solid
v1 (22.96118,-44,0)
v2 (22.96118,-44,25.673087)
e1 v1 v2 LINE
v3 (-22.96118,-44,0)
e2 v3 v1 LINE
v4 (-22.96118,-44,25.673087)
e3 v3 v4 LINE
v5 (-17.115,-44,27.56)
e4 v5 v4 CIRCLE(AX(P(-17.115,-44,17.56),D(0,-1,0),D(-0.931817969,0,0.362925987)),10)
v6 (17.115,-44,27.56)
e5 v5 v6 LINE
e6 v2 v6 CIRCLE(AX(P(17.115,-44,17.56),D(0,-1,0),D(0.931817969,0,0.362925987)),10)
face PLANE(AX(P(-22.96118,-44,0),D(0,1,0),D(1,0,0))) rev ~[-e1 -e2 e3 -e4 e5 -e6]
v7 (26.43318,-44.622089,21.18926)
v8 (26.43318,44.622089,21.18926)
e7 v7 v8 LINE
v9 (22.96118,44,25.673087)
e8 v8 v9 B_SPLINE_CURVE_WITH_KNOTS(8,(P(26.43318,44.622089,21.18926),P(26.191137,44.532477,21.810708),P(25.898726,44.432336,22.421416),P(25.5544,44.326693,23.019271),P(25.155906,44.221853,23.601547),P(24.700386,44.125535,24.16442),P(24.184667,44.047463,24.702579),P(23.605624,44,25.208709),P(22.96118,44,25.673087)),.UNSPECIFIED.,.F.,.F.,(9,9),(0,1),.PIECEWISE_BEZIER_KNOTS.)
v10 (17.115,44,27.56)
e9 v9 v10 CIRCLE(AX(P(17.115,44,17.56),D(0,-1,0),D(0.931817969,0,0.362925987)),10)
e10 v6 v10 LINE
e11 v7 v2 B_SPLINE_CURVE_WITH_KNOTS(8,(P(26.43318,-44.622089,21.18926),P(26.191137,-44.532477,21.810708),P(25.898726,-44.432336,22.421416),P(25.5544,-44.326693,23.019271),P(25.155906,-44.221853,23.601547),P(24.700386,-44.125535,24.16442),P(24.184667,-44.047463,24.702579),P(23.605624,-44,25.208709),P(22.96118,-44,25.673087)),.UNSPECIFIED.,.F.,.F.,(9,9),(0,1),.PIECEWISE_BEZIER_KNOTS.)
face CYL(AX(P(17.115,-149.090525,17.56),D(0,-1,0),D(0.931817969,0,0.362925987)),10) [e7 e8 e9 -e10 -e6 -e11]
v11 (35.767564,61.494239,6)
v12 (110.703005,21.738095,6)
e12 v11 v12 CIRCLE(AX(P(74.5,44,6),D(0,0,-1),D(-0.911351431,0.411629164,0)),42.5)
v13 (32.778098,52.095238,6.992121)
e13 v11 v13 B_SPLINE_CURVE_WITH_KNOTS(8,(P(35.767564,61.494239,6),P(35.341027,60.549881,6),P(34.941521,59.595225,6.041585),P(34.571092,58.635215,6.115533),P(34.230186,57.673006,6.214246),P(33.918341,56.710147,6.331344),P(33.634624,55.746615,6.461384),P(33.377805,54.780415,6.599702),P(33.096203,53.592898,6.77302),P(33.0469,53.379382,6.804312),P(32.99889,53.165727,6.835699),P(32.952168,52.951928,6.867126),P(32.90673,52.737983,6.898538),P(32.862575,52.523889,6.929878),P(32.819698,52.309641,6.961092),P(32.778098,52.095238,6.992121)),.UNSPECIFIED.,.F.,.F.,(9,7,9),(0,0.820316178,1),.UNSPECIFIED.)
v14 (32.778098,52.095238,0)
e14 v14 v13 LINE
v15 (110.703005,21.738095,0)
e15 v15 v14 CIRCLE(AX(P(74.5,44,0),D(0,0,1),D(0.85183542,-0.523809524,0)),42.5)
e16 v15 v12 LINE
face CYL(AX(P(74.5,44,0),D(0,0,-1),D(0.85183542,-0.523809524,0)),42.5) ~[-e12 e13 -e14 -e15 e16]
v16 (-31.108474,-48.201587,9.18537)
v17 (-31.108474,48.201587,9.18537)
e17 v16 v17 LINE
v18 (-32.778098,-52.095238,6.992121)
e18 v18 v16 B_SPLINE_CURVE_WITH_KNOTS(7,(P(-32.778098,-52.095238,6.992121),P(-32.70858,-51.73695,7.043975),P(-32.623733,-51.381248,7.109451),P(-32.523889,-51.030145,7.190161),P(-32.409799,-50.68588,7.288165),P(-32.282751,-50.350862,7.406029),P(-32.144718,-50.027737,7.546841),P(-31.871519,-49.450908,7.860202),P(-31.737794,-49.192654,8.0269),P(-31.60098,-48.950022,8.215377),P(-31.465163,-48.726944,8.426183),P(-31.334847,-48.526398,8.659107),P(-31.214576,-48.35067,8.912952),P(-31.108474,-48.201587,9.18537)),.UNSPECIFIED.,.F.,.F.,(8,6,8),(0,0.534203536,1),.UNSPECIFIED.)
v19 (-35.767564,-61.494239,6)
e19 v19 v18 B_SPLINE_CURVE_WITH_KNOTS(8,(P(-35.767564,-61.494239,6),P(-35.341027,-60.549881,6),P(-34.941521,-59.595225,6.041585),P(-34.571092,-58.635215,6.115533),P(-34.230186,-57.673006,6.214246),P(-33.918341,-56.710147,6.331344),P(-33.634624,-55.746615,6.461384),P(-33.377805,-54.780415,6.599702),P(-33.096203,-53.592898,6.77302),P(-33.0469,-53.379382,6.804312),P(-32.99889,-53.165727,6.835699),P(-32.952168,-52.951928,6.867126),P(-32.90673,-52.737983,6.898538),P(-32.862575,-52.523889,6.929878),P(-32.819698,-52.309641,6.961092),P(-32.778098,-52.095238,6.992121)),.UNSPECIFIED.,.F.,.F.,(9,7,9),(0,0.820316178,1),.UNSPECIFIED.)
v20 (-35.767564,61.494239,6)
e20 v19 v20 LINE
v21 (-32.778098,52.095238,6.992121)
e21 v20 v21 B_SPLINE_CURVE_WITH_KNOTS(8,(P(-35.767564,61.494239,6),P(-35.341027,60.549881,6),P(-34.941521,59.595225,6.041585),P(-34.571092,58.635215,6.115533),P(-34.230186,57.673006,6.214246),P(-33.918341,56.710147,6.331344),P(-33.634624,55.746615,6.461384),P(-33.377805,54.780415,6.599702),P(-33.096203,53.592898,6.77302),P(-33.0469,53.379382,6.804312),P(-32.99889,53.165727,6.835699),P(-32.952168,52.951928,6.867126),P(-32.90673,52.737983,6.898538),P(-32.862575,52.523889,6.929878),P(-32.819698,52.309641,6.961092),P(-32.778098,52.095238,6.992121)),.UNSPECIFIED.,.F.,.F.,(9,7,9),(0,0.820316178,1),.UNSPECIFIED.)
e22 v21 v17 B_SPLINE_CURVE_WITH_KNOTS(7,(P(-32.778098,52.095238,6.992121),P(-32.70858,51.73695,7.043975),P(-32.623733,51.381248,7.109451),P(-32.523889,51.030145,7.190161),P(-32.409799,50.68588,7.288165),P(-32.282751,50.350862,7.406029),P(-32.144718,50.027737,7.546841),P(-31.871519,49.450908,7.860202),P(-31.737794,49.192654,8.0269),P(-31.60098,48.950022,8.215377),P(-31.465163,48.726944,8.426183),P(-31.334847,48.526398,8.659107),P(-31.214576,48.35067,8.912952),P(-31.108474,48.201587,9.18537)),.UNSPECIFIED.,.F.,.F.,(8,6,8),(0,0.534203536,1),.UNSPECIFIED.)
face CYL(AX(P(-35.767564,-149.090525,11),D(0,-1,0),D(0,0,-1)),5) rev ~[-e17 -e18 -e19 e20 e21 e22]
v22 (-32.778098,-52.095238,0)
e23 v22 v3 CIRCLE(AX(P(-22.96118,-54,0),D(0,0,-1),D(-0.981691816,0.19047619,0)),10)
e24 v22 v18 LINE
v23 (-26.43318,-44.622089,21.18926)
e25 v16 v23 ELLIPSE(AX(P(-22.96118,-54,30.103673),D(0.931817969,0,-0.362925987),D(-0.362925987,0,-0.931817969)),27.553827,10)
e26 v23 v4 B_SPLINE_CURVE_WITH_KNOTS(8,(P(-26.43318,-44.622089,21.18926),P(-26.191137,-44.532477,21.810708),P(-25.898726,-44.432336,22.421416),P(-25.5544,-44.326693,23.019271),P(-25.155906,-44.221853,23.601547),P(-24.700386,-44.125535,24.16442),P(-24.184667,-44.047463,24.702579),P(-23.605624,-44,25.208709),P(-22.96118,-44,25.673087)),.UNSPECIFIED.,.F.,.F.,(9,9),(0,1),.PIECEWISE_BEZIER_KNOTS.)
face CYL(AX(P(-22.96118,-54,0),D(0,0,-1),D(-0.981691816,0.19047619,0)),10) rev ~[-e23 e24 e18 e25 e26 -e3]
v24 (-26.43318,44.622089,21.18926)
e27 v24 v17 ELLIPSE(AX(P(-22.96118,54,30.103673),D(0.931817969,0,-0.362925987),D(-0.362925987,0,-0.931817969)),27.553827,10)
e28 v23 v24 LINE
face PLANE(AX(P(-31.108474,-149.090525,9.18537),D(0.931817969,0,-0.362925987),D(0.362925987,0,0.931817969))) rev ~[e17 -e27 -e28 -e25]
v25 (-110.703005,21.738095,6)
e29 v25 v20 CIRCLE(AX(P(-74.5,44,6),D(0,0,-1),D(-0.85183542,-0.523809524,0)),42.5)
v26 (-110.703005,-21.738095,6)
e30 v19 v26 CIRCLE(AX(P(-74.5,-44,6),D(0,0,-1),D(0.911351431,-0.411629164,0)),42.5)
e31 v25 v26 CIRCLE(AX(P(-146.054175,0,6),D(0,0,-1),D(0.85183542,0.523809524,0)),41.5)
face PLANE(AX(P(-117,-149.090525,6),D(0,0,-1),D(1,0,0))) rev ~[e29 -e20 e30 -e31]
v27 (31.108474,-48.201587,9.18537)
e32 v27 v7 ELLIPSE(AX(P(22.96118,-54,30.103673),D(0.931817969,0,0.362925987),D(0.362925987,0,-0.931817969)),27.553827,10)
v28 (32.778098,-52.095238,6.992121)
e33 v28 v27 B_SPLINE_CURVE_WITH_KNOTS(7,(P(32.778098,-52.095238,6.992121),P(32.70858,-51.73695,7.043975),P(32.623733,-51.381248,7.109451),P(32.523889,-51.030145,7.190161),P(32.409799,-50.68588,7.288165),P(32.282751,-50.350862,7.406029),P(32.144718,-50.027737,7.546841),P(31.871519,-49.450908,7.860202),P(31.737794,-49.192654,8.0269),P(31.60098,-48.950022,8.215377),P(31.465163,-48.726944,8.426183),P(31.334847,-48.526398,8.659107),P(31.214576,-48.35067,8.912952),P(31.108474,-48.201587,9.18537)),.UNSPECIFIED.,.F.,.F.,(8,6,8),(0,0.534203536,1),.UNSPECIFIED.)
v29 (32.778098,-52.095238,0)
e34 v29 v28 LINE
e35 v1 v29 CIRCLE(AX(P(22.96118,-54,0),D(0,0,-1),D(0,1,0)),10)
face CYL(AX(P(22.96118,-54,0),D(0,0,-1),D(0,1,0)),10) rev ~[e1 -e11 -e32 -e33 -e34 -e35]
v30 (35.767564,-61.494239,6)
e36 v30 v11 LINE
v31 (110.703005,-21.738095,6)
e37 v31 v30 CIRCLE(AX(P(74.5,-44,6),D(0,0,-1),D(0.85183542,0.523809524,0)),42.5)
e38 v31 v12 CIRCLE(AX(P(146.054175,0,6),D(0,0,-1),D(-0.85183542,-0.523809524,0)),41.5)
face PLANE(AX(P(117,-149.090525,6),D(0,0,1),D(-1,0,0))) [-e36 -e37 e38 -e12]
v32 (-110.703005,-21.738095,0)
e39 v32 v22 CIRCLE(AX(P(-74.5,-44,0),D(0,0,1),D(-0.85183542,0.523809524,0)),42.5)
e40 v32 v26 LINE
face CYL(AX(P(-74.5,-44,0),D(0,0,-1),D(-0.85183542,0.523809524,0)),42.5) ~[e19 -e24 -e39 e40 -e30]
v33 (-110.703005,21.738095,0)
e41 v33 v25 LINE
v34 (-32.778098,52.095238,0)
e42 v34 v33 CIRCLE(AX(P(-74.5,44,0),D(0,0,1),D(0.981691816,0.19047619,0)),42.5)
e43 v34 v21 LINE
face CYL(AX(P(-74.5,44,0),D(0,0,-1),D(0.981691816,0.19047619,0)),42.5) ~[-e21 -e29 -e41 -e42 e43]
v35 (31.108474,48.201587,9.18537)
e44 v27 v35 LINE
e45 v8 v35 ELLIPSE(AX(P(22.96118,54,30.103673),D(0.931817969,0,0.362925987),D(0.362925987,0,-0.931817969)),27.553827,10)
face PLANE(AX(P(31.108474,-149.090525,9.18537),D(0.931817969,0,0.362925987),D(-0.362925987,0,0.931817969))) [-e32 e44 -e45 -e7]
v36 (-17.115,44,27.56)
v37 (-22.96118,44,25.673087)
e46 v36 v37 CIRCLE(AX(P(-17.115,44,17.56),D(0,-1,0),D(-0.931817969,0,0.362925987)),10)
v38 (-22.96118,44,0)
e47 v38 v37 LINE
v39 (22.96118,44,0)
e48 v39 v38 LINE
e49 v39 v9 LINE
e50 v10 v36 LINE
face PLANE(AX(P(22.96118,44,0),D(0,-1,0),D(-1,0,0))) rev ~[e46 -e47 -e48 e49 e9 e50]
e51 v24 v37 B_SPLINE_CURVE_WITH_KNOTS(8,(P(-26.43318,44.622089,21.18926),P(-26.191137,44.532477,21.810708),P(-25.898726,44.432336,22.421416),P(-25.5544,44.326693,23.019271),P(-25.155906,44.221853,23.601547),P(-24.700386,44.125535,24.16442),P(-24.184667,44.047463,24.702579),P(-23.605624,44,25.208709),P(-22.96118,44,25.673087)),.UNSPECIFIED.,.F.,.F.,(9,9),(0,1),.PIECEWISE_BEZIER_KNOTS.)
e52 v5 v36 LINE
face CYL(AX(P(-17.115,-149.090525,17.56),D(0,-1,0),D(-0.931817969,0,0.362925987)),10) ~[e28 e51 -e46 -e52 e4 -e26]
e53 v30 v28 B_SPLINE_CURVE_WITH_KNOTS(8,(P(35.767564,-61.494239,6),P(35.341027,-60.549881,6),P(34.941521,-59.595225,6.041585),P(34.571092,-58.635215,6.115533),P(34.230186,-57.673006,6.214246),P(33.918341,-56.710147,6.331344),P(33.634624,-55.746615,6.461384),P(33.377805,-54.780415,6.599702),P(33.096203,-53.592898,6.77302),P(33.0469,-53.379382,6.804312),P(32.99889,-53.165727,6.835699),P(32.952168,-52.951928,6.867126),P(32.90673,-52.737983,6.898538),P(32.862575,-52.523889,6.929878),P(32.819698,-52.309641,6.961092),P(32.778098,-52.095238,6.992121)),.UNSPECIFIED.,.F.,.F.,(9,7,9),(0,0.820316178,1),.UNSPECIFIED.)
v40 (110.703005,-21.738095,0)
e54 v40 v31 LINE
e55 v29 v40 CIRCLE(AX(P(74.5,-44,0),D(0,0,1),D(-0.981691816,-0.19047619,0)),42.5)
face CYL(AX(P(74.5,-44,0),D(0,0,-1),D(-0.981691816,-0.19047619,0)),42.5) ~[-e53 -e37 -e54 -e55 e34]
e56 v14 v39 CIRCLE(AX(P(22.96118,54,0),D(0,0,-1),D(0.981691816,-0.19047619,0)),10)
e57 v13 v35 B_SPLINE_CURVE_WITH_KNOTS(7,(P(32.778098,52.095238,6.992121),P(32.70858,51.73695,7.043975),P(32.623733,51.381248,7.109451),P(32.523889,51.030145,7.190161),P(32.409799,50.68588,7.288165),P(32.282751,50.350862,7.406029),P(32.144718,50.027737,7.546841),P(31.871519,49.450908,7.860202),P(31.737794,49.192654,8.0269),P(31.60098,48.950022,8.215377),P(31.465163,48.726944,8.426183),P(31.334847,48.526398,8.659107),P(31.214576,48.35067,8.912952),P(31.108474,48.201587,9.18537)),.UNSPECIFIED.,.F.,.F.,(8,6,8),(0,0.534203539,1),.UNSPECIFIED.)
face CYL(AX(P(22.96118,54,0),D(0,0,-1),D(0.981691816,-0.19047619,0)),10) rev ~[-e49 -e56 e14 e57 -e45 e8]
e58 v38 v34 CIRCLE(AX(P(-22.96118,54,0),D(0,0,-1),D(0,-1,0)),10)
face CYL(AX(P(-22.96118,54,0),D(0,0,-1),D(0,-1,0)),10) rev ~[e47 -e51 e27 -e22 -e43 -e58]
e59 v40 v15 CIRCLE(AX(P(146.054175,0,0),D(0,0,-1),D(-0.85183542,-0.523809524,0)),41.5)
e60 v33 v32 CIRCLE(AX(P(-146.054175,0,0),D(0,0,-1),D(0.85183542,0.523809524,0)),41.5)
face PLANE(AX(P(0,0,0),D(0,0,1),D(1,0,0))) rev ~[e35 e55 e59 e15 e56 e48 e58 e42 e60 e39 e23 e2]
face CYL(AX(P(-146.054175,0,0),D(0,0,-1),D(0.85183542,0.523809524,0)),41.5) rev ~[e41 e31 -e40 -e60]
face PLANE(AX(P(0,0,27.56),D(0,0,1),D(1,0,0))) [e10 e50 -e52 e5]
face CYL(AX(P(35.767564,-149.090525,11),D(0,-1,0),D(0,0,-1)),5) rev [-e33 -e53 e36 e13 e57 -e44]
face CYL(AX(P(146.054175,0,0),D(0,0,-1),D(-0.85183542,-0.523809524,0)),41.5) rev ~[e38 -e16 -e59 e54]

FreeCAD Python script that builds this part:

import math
import FreeCAD as App
import Part
import Sketcher

V = App.Vector
Q = App.Units.Quantity

doc = App.newDocument("Part")
body = doc.addObject("PartDesign::Body", "Body")

sketch1 = doc.addObject("Sketcher::SketchObject", "Sketch")
body.addObject(sketch1)
sketch1.AttachmentSupport = (doc.XY_Plane, [""])
sketch1.MapMode = "FlatFace"
sketch1.addGeometry(Part.LineSegment(V(22.96118, 44, 0), V(-22.96118, 44, 0)), False)
sketch1.addGeometry(Part.ArcOfCircle(Part.Circle(V(-22.96118, 54, 0), V(0, 0, 1), 10), math.radians(-169.019425), math.radians(-90)), False)
sketch1.addGeometry(Part.ArcOfCircle(Part.Circle(V(-74.5, 44, 0), V(0, 0, 1), 42.5), math.radians(10.980575), math.radians(211.588136)), False)
sketch1.addGeometry(Part.ArcOfCircle(Part.Circle(V(-146.054175, 0, 0), V(0, 0, 1), 41.5), math.radians(-31.588136), math.radians(31.588136)), False)
sketch1.addGeometry(Part.ArcOfCircle(Part.Circle(V(-74.5, -44, 0), V(0, 0, 1), 42.5), math.radians(148.411864), math.radians(349.019425)), False)
sketch1.addGeometry(Part.ArcOfCircle(Part.Circle(V(-22.96118, -54, 0), V(0, 0, 1), 10), math.radians(90), math.radians(169.019425)), False)
sketch1.addGeometry(Part.LineSegment(V(-22.96118, -44, 0), V(22.96118, -44, 0)), False)
sketch1.addGeometry(Part.ArcOfCircle(Part.Circle(V(22.96118, -54, 0), V(0, 0, 1), 10), math.radians(10.980575), math.radians(90)), False)
sketch1.addGeometry(Part.ArcOfCircle(Part.Circle(V(74.5, -44, 0), V(0, 0, 1), 42.5), math.radians(-169.019425), math.radians(31.588136)), False)
sketch1.addGeometry(Part.ArcOfCircle(Part.Circle(V(146.054175, 0, 0), V(0, 0, 1), 41.5), math.radians(148.411864), math.radians(211.588136)), False)
sketch1.addGeometry(Part.ArcOfCircle(Part.Circle(V(74.5, 44, 0), V(0, 0, 1), 42.5), math.radians(-31.588136), math.radians(169.019425)), False)
sketch1.addGeometry(Part.ArcOfCircle(Part.Circle(V(22.96118, 54, 0), V(0, 0, 1), 10), math.radians(-90), math.radians(-10.980575)), False)
sketch1.addConstraint(Sketcher.Constraint("Tangent", 0, 2, 1, 2))
sketch1.addConstraint(Sketcher.Constraint("Tangent", 1, 1, 2, 1))
sketch1.addConstraint(Sketcher.Constraint("Tangent", 2, 2, 3, 2))
sketch1.addConstraint(Sketcher.Constraint("Tangent", 3, 1, 4, 1))
sketch1.addConstraint(Sketcher.Constraint("Tangent", 4, 2, 5, 2))
sketch1.addConstraint(Sketcher.Constraint("Tangent", 5, 1, 6, 1))
sketch1.addConstraint(Sketcher.Constraint("Tangent", 6, 2, 7, 2))
sketch1.addConstraint(Sketcher.Constraint("Tangent", 7, 1, 8, 1))
sketch1.addConstraint(Sketcher.Constraint("Tangent", 8, 2, 9, 2))
sketch1.addConstraint(Sketcher.Constraint("Tangent", 9, 1, 10, 1))
sketch1.addConstraint(Sketcher.Constraint("Tangent", 10, 2, 11, 2))
sketch1.addConstraint(Sketcher.Constraint("Tangent", 11, 1, 0, 1))
sketch1.addConstraint(Sketcher.Constraint("Horizontal", 0))
sketch1.addConstraint(Sketcher.Constraint("Horizontal", 6))
sketch1.addConstraint(Sketcher.Constraint("Equal", 2, 4))
sketch1.addConstraint(Sketcher.Constraint("Equal", 1, 5))
sketch1.addConstraint(Sketcher.Constraint("Equal", 5, 7))
sketch1.addConstraint(Sketcher.Constraint("Equal", 4, 8))
sketch1.addConstraint(Sketcher.Constraint("Equal", 3, 9))
sketch1.addConstraint(Sketcher.Constraint("Equal", 8, 10))
sketch1.addConstraint(Sketcher.Constraint("Equal", 7, 11))
sketch1.addConstraint(Sketcher.Constraint("Symmetric", 1, 3, 7, 3, -1, 1))
sketch1.addConstraint(Sketcher.Constraint("Symmetric", 3, 3, 9, 3, -1, 1))
sketch1.addConstraint(Sketcher.Constraint("Symmetric", 4, 3, 8, 3, -2))
sketch1.addConstraint(Sketcher.Constraint("Horizontal", 2, 3, 10, 3))
sketch1.addConstraint(Sketcher.Constraint("Horizontal", 10, 3, 0, 2))
sketch1.addConstraint(Sketcher.Constraint("Radius", 1, Q("10 mm")))
sketch1.addConstraint(Sketcher.Constraint("Radius", 2, Q("42.5 mm")))
sketch1.addConstraint(Sketcher.Constraint("Radius", 3, Q("41.5 mm")))
sketch1.addConstraint(Sketcher.Constraint("DistanceY", -1, 1, 1, 3, Q("54 mm")))
sketch1.addConstraint(Sketcher.Constraint("DistanceX", 4, 3, 8, 3, Q("149 mm")))
pad1 = doc.addObject("PartDesign::Pad", "Pad")
body.addObject(pad1)
pad1.Profile = sketch1
pad1.Length = 27.56

sketch2 = doc.addObject("Sketcher::SketchObject", "Sketch001")
body.addObject(sketch2)
sketch2.AttachmentSupport = (doc.XZ_Plane, [""])
sketch2.MapMode = "FlatFace"
sketch2.addGeometry(Part.LineSegment(V(117, 6, 0), V(35.767564, 6, 0)), False)
sketch2.addGeometry(Part.ArcOfCircle(Part.Circle(V(35.767564, 11, 0), V(0, 0, 1), 5), math.radians(-158.72), math.radians(-90)), False)
sketch2.addGeometry(Part.LineSegment(V(31.108474, 9.18537, 0), V(26.43318, 21.18926, 0)), False)
sketch2.addGeometry(Part.ArcOfCircle(Part.Circle(V(17.115, 17.56, 0), V(0, 0, 1), 10), math.radians(21.28), math.radians(90)), False)
sketch2.addGeometry(Part.LineSegment(V(17.115, 27.56, 0), V(117, 27.56, 0)), False)
sketch2.addGeometry(Part.LineSegment(V(117, 27.56, 0), V(117, 6, 0)), False)
sketch2.addGeometry(Part.LineSegment(V(-117, 6, 0), V(-117, 27.56, 0)), False)
sketch2.addGeometry(Part.LineSegment(V(-117, 27.56, 0), V(-17.115, 27.56, 0)), False)
sketch2.addGeometry(Part.ArcOfCircle(Part.Circle(V(-17.115, 17.56, 0), V(0, 0, 1), 10), math.radians(90), math.radians(158.72)), False)
sketch2.addGeometry(Part.LineSegment(V(-26.43318, 21.18926, 0), V(-31.108474, 9.18537, 0)), False)
sketch2.addGeometry(Part.ArcOfCircle(Part.Circle(V(-35.767564, 11, 0), V(0, 0, 1), 5), math.radians(-90), math.radians(-21.28)), False)
sketch2.addGeometry(Part.LineSegment(V(-35.767564, 6, 0), V(-117, 6, 0)), False)
sketch2.addConstraint(Sketcher.Constraint("Tangent", 0, 2, 1, 2))
sketch2.addConstraint(Sketcher.Constraint("Tangent", 1, 1, 2, 1))
sketch2.addConstraint(Sketcher.Constraint("Tangent", 2, 2, 3, 1))
sketch2.addConstraint(Sketcher.Constraint("Tangent", 3, 2, 4, 1))
sketch2.addConstraint(Sketcher.Constraint("Coincident", 4, 2, 5, 1))
sketch2.addConstraint(Sketcher.Constraint("Coincident", 5, 2, 0, 1))
sketch2.addConstraint(Sketcher.Constraint("Coincident", 6, 2, 7, 1))
sketch2.addConstraint(Sketcher.Constraint("Tangent", 7, 2, 8, 1))
sketch2.addConstraint(Sketcher.Constraint("Tangent", 8, 2, 9, 1))
sketch2.addConstraint(Sketcher.Constraint("Tangent", 9, 2, 10, 2))
sketch2.addConstraint(Sketcher.Constraint("Tangent", 10, 1, 11, 1))
sketch2.addConstraint(Sketcher.Constraint("Coincident", 11, 2, 6, 1))
sketch2.addConstraint(Sketcher.Constraint("Horizontal", 0))
sketch2.addConstraint(Sketcher.Constraint("Horizontal", 4))
sketch2.addConstraint(Sketcher.Constraint("Vertical", 5))
sketch2.addConstraint(Sketcher.Constraint("Vertical", 6))
sketch2.addConstraint(Sketcher.Constraint("Horizontal", 7))
sketch2.addConstraint(Sketcher.Constraint("Horizontal", 11))
sketch2.addConstraint(Sketcher.Constraint("Equal", 3, 8))
sketch2.addConstraint(Sketcher.Constraint("Equal", 1, 10))
sketch2.addConstraint(Sketcher.Constraint("Symmetric", 3, 3, 8, 3, -2))
sketch2.addConstraint(Sketcher.Constraint("Symmetric", 1, 3, 10, 3, -2))
sketch2.addConstraint(Sketcher.Constraint("Equal", 4, 7))
sketch2.addConstraint(Sketcher.Constraint("Radius", 1, Q("5 mm")))
sketch2.addConstraint(Sketcher.Constraint("Radius", 3, Q("10 mm")))
sketch2.addConstraint(Sketcher.Constraint("DistanceY", -1, 1, 1, 3, Q("11 mm")))
sketch2.addConstraint(Sketcher.Constraint("DistanceX", -1, 1, 4, 2, Q("117 mm")))
sketch2.addConstraint(Sketcher.Constraint("DistanceY", 5, 2, 5, 1, Q("21.56 mm")))
sketch2.addConstraint(Sketcher.Constraint("Angle", 2, Q("111.28 deg")))
sketch2.addConstraint(Sketcher.Constraint("DistanceX", 4, 1, 4, 2, Q("99.885 mm")))
pocket1 = doc.addObject("PartDesign::Pocket", "Pocket")
body.addObject(pocket1)
pocket1.Profile = sketch2
pocket1.Type = "ThroughAll"
pocket1.Midplane = True

doc.recompute()
